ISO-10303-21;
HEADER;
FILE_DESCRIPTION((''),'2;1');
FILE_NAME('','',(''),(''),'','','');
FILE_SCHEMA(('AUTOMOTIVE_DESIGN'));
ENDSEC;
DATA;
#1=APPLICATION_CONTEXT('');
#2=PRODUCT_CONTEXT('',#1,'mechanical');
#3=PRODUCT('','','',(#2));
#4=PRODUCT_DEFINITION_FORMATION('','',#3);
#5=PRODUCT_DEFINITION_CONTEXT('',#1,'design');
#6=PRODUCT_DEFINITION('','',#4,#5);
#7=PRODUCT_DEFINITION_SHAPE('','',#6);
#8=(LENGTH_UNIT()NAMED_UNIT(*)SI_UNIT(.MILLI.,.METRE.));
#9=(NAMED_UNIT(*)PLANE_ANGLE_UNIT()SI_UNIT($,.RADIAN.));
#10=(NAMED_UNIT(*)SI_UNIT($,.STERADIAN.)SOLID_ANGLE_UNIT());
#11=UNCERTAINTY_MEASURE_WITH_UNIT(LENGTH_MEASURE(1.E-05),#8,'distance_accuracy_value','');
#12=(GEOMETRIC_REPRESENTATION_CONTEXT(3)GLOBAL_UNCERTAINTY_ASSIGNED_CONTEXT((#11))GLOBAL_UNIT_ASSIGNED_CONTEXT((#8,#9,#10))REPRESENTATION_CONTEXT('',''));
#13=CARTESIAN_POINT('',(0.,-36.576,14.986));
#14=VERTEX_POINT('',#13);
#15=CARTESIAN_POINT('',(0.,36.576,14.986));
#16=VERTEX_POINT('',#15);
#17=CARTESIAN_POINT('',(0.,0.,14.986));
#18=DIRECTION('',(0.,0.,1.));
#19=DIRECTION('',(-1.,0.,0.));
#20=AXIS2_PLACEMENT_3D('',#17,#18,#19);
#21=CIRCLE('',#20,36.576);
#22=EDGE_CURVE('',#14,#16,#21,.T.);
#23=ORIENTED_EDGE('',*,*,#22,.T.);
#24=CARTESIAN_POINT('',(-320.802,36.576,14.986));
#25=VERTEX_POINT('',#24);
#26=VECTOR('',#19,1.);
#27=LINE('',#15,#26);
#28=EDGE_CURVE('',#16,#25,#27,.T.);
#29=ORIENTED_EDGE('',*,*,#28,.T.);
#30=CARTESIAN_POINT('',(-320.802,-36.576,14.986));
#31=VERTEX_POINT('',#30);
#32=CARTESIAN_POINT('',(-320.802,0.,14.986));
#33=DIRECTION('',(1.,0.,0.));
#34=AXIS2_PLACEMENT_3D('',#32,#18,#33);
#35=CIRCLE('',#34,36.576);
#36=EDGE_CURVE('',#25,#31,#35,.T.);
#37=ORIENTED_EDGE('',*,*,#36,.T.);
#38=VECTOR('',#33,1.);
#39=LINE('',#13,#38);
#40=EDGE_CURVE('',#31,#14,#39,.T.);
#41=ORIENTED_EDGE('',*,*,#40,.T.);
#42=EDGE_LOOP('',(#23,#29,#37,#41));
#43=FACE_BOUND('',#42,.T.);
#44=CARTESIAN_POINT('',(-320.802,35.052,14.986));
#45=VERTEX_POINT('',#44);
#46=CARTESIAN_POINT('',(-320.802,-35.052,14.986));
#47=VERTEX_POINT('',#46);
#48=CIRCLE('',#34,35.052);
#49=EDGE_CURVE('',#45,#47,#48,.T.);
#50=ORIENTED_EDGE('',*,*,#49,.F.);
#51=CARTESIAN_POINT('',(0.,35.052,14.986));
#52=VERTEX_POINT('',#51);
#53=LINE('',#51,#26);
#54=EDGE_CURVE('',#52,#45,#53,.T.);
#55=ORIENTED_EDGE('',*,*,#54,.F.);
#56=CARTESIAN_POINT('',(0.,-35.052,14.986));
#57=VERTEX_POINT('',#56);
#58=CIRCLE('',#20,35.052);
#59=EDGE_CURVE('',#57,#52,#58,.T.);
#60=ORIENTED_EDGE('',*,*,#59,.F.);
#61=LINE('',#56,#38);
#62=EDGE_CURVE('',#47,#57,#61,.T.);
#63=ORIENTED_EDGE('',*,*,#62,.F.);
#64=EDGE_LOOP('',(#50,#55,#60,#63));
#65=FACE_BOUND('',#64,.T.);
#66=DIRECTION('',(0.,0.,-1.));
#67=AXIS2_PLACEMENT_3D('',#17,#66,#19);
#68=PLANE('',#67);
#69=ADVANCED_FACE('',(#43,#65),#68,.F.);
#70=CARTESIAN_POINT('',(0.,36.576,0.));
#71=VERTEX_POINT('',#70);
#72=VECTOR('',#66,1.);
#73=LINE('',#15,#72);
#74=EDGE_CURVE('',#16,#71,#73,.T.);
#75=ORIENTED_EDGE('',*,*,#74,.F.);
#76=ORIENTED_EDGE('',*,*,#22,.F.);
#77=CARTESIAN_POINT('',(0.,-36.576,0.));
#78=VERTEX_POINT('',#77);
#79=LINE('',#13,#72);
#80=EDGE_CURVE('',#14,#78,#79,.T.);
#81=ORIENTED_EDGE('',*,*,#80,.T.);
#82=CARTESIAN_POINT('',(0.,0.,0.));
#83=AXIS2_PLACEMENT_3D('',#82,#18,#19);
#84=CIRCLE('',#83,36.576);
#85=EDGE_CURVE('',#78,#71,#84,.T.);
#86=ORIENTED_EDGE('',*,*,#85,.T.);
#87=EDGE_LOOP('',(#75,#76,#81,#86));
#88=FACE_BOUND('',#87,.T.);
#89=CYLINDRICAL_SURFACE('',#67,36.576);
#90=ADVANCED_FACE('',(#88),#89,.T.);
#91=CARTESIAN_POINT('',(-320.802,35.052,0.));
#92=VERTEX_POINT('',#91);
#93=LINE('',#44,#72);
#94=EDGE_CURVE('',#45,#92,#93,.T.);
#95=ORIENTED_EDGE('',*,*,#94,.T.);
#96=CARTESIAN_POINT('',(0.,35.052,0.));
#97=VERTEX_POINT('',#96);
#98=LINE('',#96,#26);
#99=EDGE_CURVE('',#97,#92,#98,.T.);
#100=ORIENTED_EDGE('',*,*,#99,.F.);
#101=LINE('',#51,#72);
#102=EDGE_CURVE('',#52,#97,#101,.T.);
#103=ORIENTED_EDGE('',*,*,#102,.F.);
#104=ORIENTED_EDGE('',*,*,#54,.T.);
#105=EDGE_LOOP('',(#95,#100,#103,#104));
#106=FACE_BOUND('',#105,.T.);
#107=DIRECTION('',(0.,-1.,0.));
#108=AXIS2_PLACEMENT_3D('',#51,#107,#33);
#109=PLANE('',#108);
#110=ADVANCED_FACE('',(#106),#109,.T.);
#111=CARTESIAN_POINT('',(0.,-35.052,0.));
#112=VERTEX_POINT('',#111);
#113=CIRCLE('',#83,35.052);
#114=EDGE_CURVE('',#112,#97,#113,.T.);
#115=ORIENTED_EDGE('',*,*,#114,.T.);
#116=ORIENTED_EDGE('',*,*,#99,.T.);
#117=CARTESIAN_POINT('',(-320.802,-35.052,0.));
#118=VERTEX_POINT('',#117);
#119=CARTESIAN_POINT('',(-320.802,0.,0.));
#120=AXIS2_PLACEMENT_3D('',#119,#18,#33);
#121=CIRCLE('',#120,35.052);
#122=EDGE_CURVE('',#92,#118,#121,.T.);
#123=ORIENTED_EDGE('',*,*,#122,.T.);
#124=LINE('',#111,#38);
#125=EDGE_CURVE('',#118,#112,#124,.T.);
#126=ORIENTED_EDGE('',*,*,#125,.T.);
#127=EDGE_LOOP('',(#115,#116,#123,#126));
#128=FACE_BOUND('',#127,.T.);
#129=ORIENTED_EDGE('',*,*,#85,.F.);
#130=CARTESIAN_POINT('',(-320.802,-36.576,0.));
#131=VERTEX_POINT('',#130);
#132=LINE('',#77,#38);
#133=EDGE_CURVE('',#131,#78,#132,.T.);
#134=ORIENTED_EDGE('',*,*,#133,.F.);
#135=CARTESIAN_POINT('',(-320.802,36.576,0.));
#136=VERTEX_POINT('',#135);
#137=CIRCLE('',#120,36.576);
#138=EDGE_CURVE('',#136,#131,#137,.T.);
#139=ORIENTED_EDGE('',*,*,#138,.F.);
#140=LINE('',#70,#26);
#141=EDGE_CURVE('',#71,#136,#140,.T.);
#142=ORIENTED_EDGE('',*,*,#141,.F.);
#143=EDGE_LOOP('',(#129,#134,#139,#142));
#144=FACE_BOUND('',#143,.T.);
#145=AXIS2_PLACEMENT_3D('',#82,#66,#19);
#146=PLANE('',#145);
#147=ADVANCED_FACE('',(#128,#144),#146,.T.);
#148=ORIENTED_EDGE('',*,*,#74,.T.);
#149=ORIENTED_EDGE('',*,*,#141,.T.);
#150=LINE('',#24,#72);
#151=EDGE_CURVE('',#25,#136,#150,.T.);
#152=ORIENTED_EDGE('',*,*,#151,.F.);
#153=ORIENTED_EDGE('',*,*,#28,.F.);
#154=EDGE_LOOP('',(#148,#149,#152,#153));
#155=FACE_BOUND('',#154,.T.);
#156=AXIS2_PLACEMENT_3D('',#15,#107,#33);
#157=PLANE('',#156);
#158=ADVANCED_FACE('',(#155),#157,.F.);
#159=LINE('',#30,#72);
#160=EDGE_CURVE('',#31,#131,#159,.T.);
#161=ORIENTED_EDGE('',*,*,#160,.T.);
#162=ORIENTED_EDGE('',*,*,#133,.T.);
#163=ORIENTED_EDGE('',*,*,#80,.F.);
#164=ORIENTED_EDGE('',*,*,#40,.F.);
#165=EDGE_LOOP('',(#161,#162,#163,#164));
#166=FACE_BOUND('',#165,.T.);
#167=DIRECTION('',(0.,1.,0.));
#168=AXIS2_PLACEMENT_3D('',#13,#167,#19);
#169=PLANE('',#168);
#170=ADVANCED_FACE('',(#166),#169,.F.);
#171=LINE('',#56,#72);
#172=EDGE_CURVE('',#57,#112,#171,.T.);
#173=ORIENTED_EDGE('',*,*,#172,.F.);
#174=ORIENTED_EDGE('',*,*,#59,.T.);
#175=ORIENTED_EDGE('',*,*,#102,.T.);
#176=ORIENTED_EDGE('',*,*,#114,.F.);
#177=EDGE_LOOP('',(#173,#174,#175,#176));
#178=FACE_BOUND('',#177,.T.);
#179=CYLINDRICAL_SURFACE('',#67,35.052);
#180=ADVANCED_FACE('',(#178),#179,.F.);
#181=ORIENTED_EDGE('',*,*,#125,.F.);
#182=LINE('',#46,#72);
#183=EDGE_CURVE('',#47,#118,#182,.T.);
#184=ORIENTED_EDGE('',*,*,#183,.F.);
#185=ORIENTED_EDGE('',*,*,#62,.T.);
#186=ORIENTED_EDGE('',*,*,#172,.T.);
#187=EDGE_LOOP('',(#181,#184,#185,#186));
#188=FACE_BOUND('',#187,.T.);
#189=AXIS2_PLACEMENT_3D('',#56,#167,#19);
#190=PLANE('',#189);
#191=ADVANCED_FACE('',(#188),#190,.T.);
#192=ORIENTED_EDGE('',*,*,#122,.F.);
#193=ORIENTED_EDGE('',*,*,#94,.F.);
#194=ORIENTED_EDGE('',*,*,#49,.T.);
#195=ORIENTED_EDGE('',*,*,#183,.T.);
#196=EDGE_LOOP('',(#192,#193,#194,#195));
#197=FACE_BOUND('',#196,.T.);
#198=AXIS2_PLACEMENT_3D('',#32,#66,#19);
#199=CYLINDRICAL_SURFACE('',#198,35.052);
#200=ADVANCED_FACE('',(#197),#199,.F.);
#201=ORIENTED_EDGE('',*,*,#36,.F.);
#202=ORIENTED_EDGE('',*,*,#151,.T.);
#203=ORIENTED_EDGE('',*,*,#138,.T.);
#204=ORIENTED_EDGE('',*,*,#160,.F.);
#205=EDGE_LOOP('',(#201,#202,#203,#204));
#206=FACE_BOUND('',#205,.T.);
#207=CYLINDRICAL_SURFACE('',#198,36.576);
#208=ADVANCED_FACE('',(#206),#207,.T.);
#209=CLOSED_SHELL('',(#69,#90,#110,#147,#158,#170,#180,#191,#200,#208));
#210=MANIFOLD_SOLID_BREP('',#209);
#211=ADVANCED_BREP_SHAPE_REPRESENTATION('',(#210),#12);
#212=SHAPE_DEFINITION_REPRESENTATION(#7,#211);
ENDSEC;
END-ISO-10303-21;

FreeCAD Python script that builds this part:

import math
import FreeCAD as App
import Part
import Sketcher
from FreeCAD import Vector
Q = App.Units.Quantity

doc = App.newDocument("Part")
body = doc.addObject("PartDesign::Body", "Body")

# Sketch on XY plane
sketch1 = body.newObject("Sketcher::SketchObject", "Sketch")
sketch1.AttachmentSupport = (doc.getObject("XY_Plane"), [""])
sketch1.MapMode = "FlatFace"
sketch1.addGeometry(Part.LineSegment(Vector(0, 37, 0), Vector(-321, 37, 0)), False)
sketch1.addGeometry(Part.ArcOfCircle(Part.Circle(Vector(-321, 0, 0), Vector(0, 0, 1), 37), math.radians(90), math.radians(270)), False)
sketch1.addGeometry(Part.LineSegment(Vector(-321, -37, 0), Vector(0, -37, 0)), False)
sketch1.addGeometry(Part.ArcOfCircle(Part.Circle(Vector(0, 0, 0), Vector(0, 0, 1), 37), math.radians(-90), math.radians(90)), False)
sketch1.addGeometry(Part.LineSegment(Vector(-321, 35, 0), Vector(0, 35, 0)), False)
sketch1.addGeometry(Part.ArcOfCircle(Part.Circle(Vector(0, 0, 0), Vector(0, 0, 1), 35), math.radians(-90), math.radians(90)), False)
sketch1.addGeometry(Part.LineSegment(Vector(0, -35, 0), Vector(-321, -35, 0)), False)
sketch1.addGeometry(Part.ArcOfCircle(Part.Circle(Vector(-321, 0, 0), Vector(0, 0, 1), 35), math.radians(90), math.radians(270)), False)
sketch1.addConstraint(Sketcher.Constraint("Tangent", 0, 2, 1, 1))
sketch1.addConstraint(Sketcher.Constraint("Tangent", 1, 2, 2, 1))
sketch1.addConstraint(Sketcher.Constraint("Tangent", 2, 2, 3, 1))
sketch1.addConstraint(Sketcher.Constraint("Tangent", 3, 2, 0, 1))
sketch1.addConstraint(Sketcher.Constraint("Tangent", 4, 2, 5, 2))
sketch1.addConstraint(Sketcher.Constraint("Tangent", 5, 1, 6, 1))
sketch1.addConstraint(Sketcher.Constraint("Tangent", 6, 2, 7, 2))
sketch1.addConstraint(Sketcher.Constraint("Tangent", 7, 1, 4, 1))
sketch1.addConstraint(Sketcher.Constraint("Horizontal", 0))
sketch1.addConstraint(Sketcher.Constraint("Horizontal", 2))
sketch1.addConstraint(Sketcher.Constraint("Horizontal", 4))
sketch1.addConstraint(Sketcher.Constraint("Horizontal", 6))
sketch1.addConstraint(Sketcher.Constraint("Coincident", 3, 3, -1, 1))
sketch1.addConstraint(Sketcher.Constraint("Coincident", 5, 3, -1, 1))
sketch1.addConstraint(Sketcher.Constraint("Vertical", 7, 3, 0, 2))
sketch1.addConstraint(Sketcher.Constraint("Radius", 1, Q("1.44 in")))
sketch1.addConstraint(Sketcher.Constraint("Radius", 5, Q("1.38 in")))
sketch1.addConstraint(Sketcher.Constraint("DistanceX", 0, 2, 0, 1, Q("12.63 in")))
pad1 = body.newObject("PartDesign::Pad", "Pad")
pad1.Profile = sketch1
pad1.Length = Q("0.59 in")

doc.recompute()
